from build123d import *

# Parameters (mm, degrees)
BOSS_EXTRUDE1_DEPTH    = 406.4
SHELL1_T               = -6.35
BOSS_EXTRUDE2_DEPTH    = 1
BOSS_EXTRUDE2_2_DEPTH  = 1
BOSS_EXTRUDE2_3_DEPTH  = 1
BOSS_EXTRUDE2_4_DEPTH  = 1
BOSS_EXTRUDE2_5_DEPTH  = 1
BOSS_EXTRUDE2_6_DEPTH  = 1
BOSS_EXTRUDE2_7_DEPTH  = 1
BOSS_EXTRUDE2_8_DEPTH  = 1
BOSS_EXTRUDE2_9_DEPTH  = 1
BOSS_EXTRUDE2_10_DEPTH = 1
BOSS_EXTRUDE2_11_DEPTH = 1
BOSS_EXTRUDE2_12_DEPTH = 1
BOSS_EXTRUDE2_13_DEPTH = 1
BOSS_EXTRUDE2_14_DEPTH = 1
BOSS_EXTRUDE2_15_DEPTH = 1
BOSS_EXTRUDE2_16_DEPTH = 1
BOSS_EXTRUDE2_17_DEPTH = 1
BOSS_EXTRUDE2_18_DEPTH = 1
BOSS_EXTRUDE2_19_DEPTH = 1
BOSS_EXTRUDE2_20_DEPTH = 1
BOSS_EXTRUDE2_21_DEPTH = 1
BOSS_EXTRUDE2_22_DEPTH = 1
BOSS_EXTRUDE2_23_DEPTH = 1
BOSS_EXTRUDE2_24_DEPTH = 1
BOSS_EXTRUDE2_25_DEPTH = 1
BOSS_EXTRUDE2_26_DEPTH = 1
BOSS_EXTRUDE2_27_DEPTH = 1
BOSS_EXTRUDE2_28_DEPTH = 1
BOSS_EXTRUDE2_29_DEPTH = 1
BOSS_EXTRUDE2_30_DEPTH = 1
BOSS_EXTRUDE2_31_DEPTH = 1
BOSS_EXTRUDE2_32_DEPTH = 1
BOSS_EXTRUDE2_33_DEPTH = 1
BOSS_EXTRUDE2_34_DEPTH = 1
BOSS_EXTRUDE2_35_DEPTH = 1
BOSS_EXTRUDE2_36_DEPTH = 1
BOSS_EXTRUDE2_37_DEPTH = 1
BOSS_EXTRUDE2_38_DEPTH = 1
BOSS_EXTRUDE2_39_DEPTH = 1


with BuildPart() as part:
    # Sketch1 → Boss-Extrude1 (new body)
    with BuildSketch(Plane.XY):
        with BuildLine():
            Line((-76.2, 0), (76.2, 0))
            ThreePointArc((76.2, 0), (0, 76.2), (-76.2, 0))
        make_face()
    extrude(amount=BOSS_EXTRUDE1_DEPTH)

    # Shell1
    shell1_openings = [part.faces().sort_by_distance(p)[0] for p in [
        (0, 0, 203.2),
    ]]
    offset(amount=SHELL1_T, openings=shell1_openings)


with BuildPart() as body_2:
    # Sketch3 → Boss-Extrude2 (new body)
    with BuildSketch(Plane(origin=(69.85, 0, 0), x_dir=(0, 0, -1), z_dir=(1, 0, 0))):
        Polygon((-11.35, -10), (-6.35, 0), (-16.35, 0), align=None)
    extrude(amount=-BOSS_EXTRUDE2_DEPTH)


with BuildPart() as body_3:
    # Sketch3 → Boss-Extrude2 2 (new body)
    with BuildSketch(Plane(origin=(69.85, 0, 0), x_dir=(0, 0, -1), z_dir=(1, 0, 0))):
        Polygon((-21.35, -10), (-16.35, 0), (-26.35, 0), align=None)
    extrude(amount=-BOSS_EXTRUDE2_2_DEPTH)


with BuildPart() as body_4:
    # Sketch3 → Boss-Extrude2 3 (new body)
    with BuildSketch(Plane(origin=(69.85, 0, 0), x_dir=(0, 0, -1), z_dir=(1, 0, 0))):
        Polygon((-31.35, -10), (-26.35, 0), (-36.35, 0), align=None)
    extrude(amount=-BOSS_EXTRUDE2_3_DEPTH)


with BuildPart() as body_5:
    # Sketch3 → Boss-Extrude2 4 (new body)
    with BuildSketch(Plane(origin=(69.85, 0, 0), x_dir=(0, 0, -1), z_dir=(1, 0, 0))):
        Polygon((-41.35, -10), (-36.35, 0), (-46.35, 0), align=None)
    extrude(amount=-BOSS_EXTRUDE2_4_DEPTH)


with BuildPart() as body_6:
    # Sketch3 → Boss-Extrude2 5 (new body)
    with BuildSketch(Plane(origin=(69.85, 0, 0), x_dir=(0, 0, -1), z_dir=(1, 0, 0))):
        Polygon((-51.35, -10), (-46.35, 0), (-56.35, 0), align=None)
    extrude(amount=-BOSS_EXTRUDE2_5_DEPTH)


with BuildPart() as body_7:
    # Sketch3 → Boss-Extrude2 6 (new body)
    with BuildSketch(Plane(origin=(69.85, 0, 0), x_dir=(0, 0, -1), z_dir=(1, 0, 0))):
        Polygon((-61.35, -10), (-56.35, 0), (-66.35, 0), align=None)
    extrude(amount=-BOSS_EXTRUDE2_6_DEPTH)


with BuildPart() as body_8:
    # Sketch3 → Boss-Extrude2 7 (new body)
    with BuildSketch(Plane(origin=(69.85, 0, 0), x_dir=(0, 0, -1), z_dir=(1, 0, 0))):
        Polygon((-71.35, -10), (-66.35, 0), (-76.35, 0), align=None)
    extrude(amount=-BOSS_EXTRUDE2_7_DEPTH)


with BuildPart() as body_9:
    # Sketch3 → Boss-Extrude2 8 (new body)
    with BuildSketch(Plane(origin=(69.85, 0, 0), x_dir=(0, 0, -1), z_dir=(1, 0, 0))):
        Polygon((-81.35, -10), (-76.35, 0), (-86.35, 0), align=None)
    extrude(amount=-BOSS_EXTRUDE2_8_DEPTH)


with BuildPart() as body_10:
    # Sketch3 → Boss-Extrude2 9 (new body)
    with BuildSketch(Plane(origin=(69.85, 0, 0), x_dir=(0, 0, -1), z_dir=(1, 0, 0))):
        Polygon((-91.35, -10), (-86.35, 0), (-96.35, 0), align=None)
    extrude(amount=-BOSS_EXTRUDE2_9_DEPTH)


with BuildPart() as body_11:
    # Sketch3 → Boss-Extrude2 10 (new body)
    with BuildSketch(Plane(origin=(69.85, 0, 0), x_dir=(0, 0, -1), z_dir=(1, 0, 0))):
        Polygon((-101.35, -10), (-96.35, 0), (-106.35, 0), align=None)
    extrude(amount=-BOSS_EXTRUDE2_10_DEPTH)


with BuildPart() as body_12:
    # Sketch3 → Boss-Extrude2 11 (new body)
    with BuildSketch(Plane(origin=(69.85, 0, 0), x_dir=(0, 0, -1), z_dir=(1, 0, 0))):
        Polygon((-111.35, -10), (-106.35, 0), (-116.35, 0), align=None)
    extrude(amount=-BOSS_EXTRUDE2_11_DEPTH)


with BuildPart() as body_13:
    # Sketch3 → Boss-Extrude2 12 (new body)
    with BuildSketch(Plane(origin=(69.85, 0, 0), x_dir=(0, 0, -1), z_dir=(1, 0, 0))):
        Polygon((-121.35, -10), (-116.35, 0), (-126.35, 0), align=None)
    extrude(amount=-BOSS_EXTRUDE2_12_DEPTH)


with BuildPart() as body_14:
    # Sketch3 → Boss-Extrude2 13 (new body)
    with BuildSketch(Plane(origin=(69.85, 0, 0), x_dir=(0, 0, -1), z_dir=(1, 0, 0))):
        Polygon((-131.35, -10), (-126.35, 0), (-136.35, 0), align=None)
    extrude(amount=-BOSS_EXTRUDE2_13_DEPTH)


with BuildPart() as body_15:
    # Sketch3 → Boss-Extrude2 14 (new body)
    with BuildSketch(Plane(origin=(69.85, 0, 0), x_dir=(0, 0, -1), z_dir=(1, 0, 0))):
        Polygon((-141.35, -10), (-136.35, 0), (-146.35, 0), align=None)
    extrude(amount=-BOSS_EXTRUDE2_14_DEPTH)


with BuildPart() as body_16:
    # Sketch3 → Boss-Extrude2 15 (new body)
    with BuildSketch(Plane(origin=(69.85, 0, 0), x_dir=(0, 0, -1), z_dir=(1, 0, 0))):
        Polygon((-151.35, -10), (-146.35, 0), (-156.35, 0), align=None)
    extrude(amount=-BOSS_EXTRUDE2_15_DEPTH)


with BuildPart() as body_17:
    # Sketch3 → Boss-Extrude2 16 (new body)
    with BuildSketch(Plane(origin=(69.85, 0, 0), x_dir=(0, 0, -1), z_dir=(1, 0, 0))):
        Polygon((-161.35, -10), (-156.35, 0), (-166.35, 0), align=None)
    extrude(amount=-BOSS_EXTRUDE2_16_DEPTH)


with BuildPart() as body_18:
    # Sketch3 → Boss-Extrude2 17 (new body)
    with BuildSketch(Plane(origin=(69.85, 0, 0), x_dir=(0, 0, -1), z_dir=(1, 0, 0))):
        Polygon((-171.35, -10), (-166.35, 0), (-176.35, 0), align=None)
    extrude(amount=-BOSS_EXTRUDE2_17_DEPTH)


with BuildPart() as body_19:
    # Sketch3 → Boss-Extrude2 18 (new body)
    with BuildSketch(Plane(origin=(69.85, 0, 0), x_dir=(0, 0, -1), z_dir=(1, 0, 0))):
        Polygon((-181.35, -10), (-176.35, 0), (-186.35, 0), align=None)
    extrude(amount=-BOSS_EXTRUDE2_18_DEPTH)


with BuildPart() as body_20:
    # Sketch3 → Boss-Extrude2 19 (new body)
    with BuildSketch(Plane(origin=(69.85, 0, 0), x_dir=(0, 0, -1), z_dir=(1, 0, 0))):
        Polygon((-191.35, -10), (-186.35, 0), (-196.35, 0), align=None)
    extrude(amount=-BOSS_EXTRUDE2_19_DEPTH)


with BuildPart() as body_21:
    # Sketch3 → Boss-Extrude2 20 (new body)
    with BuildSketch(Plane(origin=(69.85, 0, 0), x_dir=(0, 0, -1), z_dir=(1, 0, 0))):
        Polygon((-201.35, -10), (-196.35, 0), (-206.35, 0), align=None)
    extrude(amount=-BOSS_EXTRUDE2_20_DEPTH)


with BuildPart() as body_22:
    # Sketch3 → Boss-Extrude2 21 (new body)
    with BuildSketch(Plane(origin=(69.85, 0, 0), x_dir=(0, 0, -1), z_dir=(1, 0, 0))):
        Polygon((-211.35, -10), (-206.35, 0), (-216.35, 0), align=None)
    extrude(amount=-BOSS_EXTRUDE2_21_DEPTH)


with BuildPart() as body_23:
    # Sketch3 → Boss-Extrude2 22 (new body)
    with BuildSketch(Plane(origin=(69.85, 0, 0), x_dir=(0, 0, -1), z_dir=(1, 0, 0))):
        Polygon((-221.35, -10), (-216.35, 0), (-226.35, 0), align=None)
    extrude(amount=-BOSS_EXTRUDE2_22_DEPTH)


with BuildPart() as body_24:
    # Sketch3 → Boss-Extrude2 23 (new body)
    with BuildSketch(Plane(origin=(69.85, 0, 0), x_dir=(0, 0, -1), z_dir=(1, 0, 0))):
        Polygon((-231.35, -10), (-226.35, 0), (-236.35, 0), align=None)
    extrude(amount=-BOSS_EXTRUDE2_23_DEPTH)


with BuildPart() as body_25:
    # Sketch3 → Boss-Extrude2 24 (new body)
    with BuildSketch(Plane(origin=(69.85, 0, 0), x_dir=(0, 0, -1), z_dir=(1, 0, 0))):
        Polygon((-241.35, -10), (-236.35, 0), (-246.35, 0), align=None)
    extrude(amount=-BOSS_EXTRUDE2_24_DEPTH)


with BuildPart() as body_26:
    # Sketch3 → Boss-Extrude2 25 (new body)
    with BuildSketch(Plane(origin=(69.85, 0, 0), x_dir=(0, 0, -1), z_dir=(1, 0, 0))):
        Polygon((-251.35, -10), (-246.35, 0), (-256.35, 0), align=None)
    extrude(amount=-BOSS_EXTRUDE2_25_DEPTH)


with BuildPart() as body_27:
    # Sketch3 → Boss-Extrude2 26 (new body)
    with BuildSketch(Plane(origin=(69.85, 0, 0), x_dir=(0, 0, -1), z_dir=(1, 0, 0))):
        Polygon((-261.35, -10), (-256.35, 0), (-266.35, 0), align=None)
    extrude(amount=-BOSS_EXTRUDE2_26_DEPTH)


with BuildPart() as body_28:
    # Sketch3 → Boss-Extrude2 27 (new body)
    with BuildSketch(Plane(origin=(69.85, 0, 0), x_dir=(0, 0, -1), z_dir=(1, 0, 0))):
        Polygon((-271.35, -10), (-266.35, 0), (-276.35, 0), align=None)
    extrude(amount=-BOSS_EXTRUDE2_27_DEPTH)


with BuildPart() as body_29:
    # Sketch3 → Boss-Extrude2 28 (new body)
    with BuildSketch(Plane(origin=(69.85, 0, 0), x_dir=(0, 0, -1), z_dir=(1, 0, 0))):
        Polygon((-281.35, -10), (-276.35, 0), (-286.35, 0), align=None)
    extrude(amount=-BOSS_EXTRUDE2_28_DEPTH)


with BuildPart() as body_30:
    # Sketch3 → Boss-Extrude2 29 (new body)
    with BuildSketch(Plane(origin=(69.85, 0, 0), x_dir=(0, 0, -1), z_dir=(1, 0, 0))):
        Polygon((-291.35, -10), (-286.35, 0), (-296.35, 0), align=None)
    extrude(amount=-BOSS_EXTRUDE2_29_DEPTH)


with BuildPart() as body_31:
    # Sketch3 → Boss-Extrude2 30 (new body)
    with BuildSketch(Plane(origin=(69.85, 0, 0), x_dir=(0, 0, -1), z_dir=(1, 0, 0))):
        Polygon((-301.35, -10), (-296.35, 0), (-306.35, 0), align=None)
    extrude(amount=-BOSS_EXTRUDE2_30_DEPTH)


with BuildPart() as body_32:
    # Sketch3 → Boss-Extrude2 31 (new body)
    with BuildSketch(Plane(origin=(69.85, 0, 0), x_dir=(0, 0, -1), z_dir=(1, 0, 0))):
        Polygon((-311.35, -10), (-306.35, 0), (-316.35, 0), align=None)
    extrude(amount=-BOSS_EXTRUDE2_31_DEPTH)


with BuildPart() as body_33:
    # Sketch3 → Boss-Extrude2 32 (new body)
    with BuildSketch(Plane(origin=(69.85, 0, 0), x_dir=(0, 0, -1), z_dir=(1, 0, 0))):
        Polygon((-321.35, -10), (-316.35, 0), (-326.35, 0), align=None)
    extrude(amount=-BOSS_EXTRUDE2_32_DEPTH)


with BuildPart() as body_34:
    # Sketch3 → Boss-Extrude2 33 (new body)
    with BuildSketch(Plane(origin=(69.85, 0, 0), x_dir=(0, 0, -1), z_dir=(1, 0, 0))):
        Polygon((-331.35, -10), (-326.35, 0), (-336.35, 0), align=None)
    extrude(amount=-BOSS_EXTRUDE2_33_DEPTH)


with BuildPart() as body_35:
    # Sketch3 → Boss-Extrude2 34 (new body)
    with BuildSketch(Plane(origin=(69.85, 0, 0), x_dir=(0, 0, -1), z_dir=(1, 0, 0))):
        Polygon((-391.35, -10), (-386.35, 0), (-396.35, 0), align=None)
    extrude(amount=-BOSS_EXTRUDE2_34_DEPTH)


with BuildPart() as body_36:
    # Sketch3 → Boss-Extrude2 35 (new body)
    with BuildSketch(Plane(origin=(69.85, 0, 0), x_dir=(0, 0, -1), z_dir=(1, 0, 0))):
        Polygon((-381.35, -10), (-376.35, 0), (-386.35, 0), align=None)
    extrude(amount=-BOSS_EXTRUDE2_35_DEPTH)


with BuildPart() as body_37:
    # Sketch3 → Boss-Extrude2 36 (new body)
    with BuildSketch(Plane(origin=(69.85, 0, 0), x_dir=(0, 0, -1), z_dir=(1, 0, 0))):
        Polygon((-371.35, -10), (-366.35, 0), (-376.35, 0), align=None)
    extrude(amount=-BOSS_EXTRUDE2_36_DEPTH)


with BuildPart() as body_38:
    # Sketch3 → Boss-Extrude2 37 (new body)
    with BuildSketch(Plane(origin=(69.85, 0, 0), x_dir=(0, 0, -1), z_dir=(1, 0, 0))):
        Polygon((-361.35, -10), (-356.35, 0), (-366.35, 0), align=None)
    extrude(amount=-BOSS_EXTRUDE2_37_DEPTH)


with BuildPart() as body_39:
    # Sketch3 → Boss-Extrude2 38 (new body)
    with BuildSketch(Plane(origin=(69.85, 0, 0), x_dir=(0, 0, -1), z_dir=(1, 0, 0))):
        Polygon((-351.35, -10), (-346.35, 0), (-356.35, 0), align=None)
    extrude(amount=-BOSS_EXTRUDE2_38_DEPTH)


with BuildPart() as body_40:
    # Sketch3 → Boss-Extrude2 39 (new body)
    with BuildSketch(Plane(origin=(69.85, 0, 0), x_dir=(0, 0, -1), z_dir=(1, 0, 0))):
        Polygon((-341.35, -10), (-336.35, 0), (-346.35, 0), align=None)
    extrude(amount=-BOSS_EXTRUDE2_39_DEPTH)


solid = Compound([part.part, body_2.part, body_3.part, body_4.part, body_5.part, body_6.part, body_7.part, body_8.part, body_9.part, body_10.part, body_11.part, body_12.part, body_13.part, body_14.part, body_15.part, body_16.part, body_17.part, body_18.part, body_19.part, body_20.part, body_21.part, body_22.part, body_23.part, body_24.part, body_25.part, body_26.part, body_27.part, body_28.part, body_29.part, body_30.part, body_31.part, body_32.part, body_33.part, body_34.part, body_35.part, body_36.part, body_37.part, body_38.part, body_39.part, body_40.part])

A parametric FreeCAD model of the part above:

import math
import FreeCAD as App
import Part
import Sketcher
from FreeCAD import Vector
Q = App.Units.Quantity


def faces_at(feature, points):
    """Names of the faces that lie closest to the given points."""
    faces = feature.Shape.Faces
    near = lambda p: min(range(len(faces)), key=lambda i: faces[i].distToShape(Part.Vertex(*p))[0])
    return sorted({f"Face{near(p) + 1}" for p in points})


def add_polygon(sketch, points):
    """Adds a closed chain of lines whose ends are joined by coincident constraints."""
    first, n = sketch.GeometryCount, len(points)
    for a, b in zip(points, points[1:] + points[:1]):
        sketch.addGeometry(Part.LineSegment(App.Vector(*a, 0), App.Vector(*b, 0)), False)
    for i in range(n):
        sketch.addConstraint(Sketcher.Constraint("Coincident", first + i, 2, first + (i + 1) % n, 1))

doc = App.newDocument("Part")
body = doc.addObject("PartDesign::Body", "Body")

sketch1 = doc.addObject("Sketcher::SketchObject", "Sketch")
body.addObject(sketch1)
sketch1.AttachmentSupport = (doc.XY_Plane, [""])
sketch1.MapMode = "FlatFace"
sketch1.addGeometry(Part.LineSegment(Vector(-76, 0, 0), Vector(76, 0, 0)), False)
sketch1.addGeometry(Part.ArcOfCircle(Part.Circle(Vector(0, 0, 0), Vector(0, 0, 1), 76), math.radians(0), math.radians(180)), False)
sketch1.addConstraint(Sketcher.Constraint("Coincident", 0, 1, 1, 2))
sketch1.addConstraint(Sketcher.Constraint("Coincident", 1, 1, 0, 2))
sketch1.addConstraint(Sketcher.Constraint("Horizontal", 0))
sketch1.addConstraint(Sketcher.Constraint("Coincident", 1, 3, -1, 1))
sketch1.addConstraint(Sketcher.Constraint("PointOnObject", 0, 1, -1))
sketch1.addConstraint(Sketcher.Constraint("Radius", 1, Q("3 in")))
pad1 = doc.addObject("PartDesign::Pad", "Pad")
body.addObject(pad1)
pad1.Profile = sketch1
pad1.Length = Q("16 in")
doc.recompute()

thickness = doc.addObject("PartDesign::Thickness", "Thickness")
body.addObject(thickness)
thickness.Base = (pad1, faces_at(pad1, [(0, 0, 203.2)]))
thickness.Value = Q("0.25 in")
thickness.Reversed = True
thickness.Join = "Arc"
body2 = doc.addObject("PartDesign::Body", "Body001")

sketch2 = doc.addObject("Sketcher::SketchObject", "Sketch001")
body2.addObject(sketch2)
sketch2.AttachmentSupport = (doc.getObject("YZ_Plane001"), [""])
sketch2.MapMode = "FlatFace"
sketch2.AttachmentOffset = App.Placement(Vector(0, 0, 2.75 * 25.4), App.Rotation())
add_polygon(sketch2, [(-10, 11), (0, 6), (0, 16)])
sketch2.addConstraint(Sketcher.Constraint("Vertical", 1))
sketch2.addConstraint(Sketcher.Constraint("PointOnObject", 0, 2, -2))
sketch2.addConstraint(Sketcher.Constraint("Equal", 0, 2))
sketch2.addConstraint(Sketcher.Constraint("DistanceY", -1, 1, 0, 2, Q("0.25 in")))
sketch2.addConstraint(Sketcher.Constraint("DistanceY", 1, 1, 1, 2, Q("10 mm")))
sketch2.addConstraint(Sketcher.Constraint("DistanceX", 2, 2, -1, 1, Q("10 mm")))
pad2 = doc.addObject("PartDesign::Pad", "Pad001")
body2.addObject(pad2)
pad2.Profile = sketch2
pad2.Length = 1
pad2.Reversed = True
body3 = doc.addObject("PartDesign::Body", "Body002")

sketch3 = doc.addObject("Sketcher::SketchObject", "Sketch002")
body3.addObject(sketch3)
sketch3.AttachmentSupport = (doc.getObject("YZ_Plane002"), [""])
sketch3.MapMode = "FlatFace"
sketch3.AttachmentOffset = App.Placement(Vector(0, 0, 2.75 * 25.4), App.Rotation())
add_polygon(sketch3, [(-10, 21), (0, 16), (0, 26)])
sketch3.addConstraint(Sketcher.Constraint("Vertical", 1))
sketch3.addConstraint(Sketcher.Constraint("PointOnObject", 0, 2, -2))
sketch3.addConstraint(Sketcher.Constraint("Equal", 0, 2))
sketch3.addConstraint(Sketcher.Constraint("DistanceY", 1, 1, 1, 2, Q("10 mm")))
sketch3.addConstraint(Sketcher.Constraint("DistanceY", -1, 1, 0, 2, Q("16.35 mm")))
sketch3.addConstraint(Sketcher.Constraint("DistanceX", 2, 2, -1, 1, Q("10 mm")))
pad3 = doc.addObject("PartDesign::Pad", "Pad002")
body3.addObject(pad3)
pad3.Profile = sketch3
pad3.Length = 1
pad3.Reversed = True
body4 = doc.addObject("PartDesign::Body", "Body003")

sketch4 = doc.addObject("Sketcher::SketchObject", "Sketch003")
body4.addObject(sketch4)
sketch4.AttachmentSupport = (doc.getObject("YZ_Plane003"), [""])
sketch4.MapMode = "FlatFace"
sketch4.AttachmentOffset = App.Placement(Vector(0, 0, 2.75 * 25.4), App.Rotation())
add_polygon(sketch4, [(-10, 31), (0, 26), (0, 36)])
sketch4.addConstraint(Sketcher.Constraint("Vertical", 1))
sketch4.addConstraint(Sketcher.Constraint("PointOnObject", 0, 2, -2))
sketch4.addConstraint(Sketcher.Constraint("Equal", 0, 2))
sketch4.addConstraint(Sketcher.Constraint("DistanceY", 1, 1, 1, 2, Q("10 mm")))
sketch4.addConstraint(Sketcher.Constraint("DistanceY", -1, 1, 0, 2, Q("26.35 mm")))
sketch4.addConstraint(Sketcher.Constraint("DistanceX", 2, 2, -1, 1, Q("10 mm")))
pad4 = doc.addObject("PartDesign::Pad", "Pad003")
body4.addObject(pad4)
pad4.Profile = sketch4
pad4.Length = 1
pad4.Reversed = True
body5 = doc.addObject("PartDesign::Body", "Body004")

sketch5 = doc.addObject("Sketcher::SketchObject", "Sketch004")
body5.addObject(sketch5)
sketch5.AttachmentSupport = (doc.getObject("YZ_Plane004"), [""])
sketch5.MapMode = "FlatFace"
sketch5.AttachmentOffset = App.Placement(Vector(0, 0, 2.75 * 25.4), App.Rotation())
add_polygon(sketch5, [(-10, 41), (0, 36), (0, 46)])
sketch5.addConstraint(Sketcher.Constraint("Vertical", 1))
sketch5.addConstraint(Sketcher.Constraint("PointOnObject", 0, 2, -2))
sketch5.addConstraint(Sketcher.Constraint("Equal", 0, 2))
sketch5.addConstraint(Sketcher.Constraint("DistanceY", 1, 1, 1, 2, Q("10 mm")))
sketch5.addConstraint(Sketcher.Constraint("DistanceY", -1, 1, 0, 2, Q("36.35 mm")))
sketch5.addConstraint(Sketcher.Constraint("DistanceX", 2, 2, -1, 1, Q("10 mm")))
pad5 = doc.addObject("PartDesign::Pad", "Pad004")
body5.addObject(pad5)
pad5.Profile = sketch5
pad5.Length = 1
pad5.Reversed = True
body6 = doc.addObject("PartDesign::Body", "Body005")

sketch6 = doc.addObject("Sketcher::SketchObject", "Sketch005")
body6.addObject(sketch6)
sketch6.AttachmentSupport = (doc.getObject("YZ_Plane005"), [""])
sketch6.MapMode = "FlatFace"
sketch6.AttachmentOffset = App.Placement(Vector(0, 0, 2.75 * 25.4), App.Rotation())
add_polygon(sketch6, [(-10, 51), (0, 46), (0, 56)])
sketch6.addConstraint(Sketcher.Constraint("Vertical", 1))
sketch6.addConstraint(Sketcher.Constraint("PointOnObject", 0, 2, -2))
sketch6.addConstraint(Sketcher.Constraint("Equal", 0, 2))
sketch6.addConstraint(Sketcher.Constraint("DistanceY", 1, 1, 1, 2, Q("10 mm")))
sketch6.addConstraint(Sketcher.Constraint("DistanceY", -1, 1, 0, 2, Q("46.35 mm")))
sketch6.addConstraint(Sketcher.Constraint("DistanceX", 2, 2, -1, 1, Q("10 mm")))
pad6 = doc.addObject("PartDesign::Pad", "Pad005")
body6.addObject(pad6)
pad6.Profile = sketch6
pad6.Length = 1
pad6.Reversed = True
body7 = doc.addObject("PartDesign::Body", "Body006")

sketch7 = doc.addObject("Sketcher::SketchObject", "Sketch006")
body7.addObject(sketch7)
sketch7.AttachmentSupport = (doc.getObject("YZ_Plane006"), [""])
sketch7.MapMode = "FlatFace"
sketch7.AttachmentOffset = App.Placement(Vector(0, 0, 2.75 * 25.4), App.Rotation())
add_polygon(sketch7, [(-10, 61), (0, 56), (0, 66)])
sketch7.addConstraint(Sketcher.Constraint("Vertical", 1))
sketch7.addConstraint(Sketcher.Constraint("PointOnObject", 0, 2, -2))
sketch7.addConstraint(Sketcher.Constraint("Equal", 0, 2))
sketch7.addConstraint(Sketcher.Constraint("DistanceY", 1, 1, 1, 2, Q("10 mm")))
sketch7.addConstraint(Sketcher.Constraint("DistanceY", -1, 1, 0, 2, Q("56.35 mm")))
sketch7.addConstraint(Sketcher.Constraint("DistanceX", 2, 2, -1, 1, Q("10 mm")))
pad7 = doc.addObject("PartDesign::Pad", "Pad006")
body7.addObject(pad7)
pad7.Profile = sketch7
pad7.Length = 1
pad7.Reversed = True
body8 = doc.addObject("PartDesign::Body", "Body007")

sketch8 = doc.addObject("Sketcher::SketchObject", "Sketch007")
body8.addObject(sketch8)
sketch8.AttachmentSupport = (doc.getObject("YZ_Plane007"), [""])
sketch8.MapMode = "FlatFace"
sketch8.AttachmentOffset = App.Placement(Vector(0, 0, 2.75 * 25.4), App.Rotation())
add_polygon(sketch8, [(-10, 71), (0, 66), (0, 76)])
sketch8.addConstraint(Sketcher.Constraint("Vertical", 1))
sketch8.addConstraint(Sketcher.Constraint("PointOnObject", 0, 2, -2))
sketch8.addConstraint(Sketcher.Constraint("Equal", 0, 2))
sketch8.addConstraint(Sketcher.Constraint("DistanceY", 1, 1, 1, 2, Q("10 mm")))
sketch8.addConstraint(Sketcher.Constraint("DistanceY", -1, 1, 0, 2, Q("66.35 mm")))
sketch8.addConstraint(Sketcher.Constraint("DistanceX", 2, 2, -1, 1, Q("10 mm")))
pad8 = doc.addObject("PartDesign::Pad", "Pad007")
body8.addObject(pad8)
pad8.Profile = sketch8
pad8.Length = 1
pad8.Reversed = True
body9 = doc.addObject("PartDesign::Body", "Body008")

sketch9 = doc.addObject("Sketcher::SketchObject", "Sketch008")
body9.addObject(sketch9)
sketch9.AttachmentSupport = (doc.getObject("YZ_Plane008"), [""])
sketch9.MapMode = "FlatFace"
sketch9.AttachmentOffset = App.Placement(Vector(0, 0, 2.75 * 25.4), App.Rotation())
add_polygon(sketch9, [(-10, 81), (0, 76), (0, 86)])
sketch9.addConstraint(Sketcher.Constraint("Vertical", 1))
sketch9.addConstraint(Sketcher.Constraint("PointOnObject", 0, 2, -2))
sketch9.addConstraint(Sketcher.Constraint("Equal", 0, 2))
sketch9.addConstraint(Sketcher.Constraint("DistanceY", 1, 1, 1, 2, Q("10 mm")))
sketch9.addConstraint(Sketcher.Constraint("DistanceY", -1, 1, 0, 2, Q("76.35 mm")))
sketch9.addConstraint(Sketcher.Constraint("DistanceX", 2, 2, -1, 1, Q("10 mm")))
pad9 = doc.addObject("PartDesign::Pad", "Pad008")
body9.addObject(pad9)
pad9.Profile = sketch9
pad9.Length = 1
pad9.Reversed = True
body10 = doc.addObject("PartDesign::Body", "Body009")

sketch10 = doc.addObject("Sketcher::SketchObject", "Sketch009")
body10.addObject(sketch10)
sketch10.AttachmentSupport = (doc.getObject("YZ_Plane009"), [""])
sketch10.MapMode = "FlatFace"
sketch10.AttachmentOffset = App.Placement(Vector(0, 0, 2.75 * 25.4), App.Rotation())
add_polygon(sketch10, [(-10, 91), (0, 86), (0, 96)])
sketch10.addConstraint(Sketcher.Constraint("Vertical", 1))
sketch10.addConstraint(Sketcher.Constraint("PointOnObject", 0, 2, -2))
sketch10.addConstraint(Sketcher.Constraint("Equal", 0, 2))
sketch10.addConstraint(Sketcher.Constraint("DistanceY", 1, 1, 1, 2, Q("10 mm")))
sketch10.addConstraint(Sketcher.Constraint("DistanceY", -1, 1, 0, 2, Q("86.35 mm")))
sketch10.addConstraint(Sketcher.Constraint("DistanceX", 2, 2, -1, 1, Q("10 mm")))
pad10 = doc.addObject("PartDesign::Pad", "Pad009")
body10.addObject(pad10)
pad10.Profile = sketch10
pad10.Length = 1
pad10.Reversed = True
body11 = doc.addObject("PartDesign::Body", "Body010")

sketch11 = doc.addObject("Sketcher::SketchObject", "Sketch010")
body11.addObject(sketch11)
sketch11.AttachmentSupport = (doc.getObject("YZ_Plane010"), [""])
sketch11.MapMode = "FlatFace"
sketch11.AttachmentOffset = App.Placement(Vector(0, 0, 2.75 * 25.4), App.Rotation())
add_polygon(sketch11, [(-10, 101), (0, 96), (0, 106)])
sketch11.addConstraint(Sketcher.Constraint("Vertical", 1))
sketch11.addConstraint(Sketcher.Constraint("PointOnObject", 0, 2, -2))
sketch11.addConstraint(Sketcher.Constraint("Equal", 0, 2))
sketch11.addConstraint(Sketcher.Constraint("DistanceY", 1, 1, 1, 2, Q("10 mm")))
sketch11.addConstraint(Sketcher.Constraint("DistanceY", -1, 1, 0, 2, Q("96.35 mm")))
sketch11.addConstraint(Sketcher.Constraint("DistanceX", 2, 2, -1, 1, Q("10 mm")))
pad11 = doc.addObject("PartDesign::Pad", "Pad010")
body11.addObject(pad11)
pad11.Profile = sketch11
pad11.Length = 1
pad11.Reversed = True
body12 = doc.addObject("PartDesign::Body", "Body011")

sketch12 = doc.addObject("Sketcher::SketchObject", "Sketch011")
body12.addObject(sketch12)
sketch12.AttachmentSupport = (doc.getObject("YZ_Plane011"), [""])
sketch12.MapMode = "FlatFace"
sketch12.AttachmentOffset = App.Placement(Vector(0, 0, 2.75 * 25.4), App.Rotation())
add_polygon(sketch12, [(-10, 111), (0, 106), (0, 116)])
sketch12.addConstraint(Sketcher.Constraint("Vertical", 1))
sketch12.addConstraint(Sketcher.Constraint("PointOnObject", 0, 2, -2))
sketch12.addConstraint(Sketcher.Constraint("Equal", 0, 2))
sketch12.addConstraint(Sketcher.Constraint("DistanceY", 1, 1, 1, 2, Q("10 mm")))
sketch12.addConstraint(Sketcher.Constraint("DistanceY", -1, 1, 0, 2, Q("106.35 mm")))
sketch12.addConstraint(Sketcher.Constraint("DistanceX", 2, 2, -1, 1, Q("10 mm")))
pad12 = doc.addObject("PartDesign::Pad", "Pad011")
body12.addObject(pad12)
pad12.Profile = sketch12
pad12.Length = 1
pad12.Reversed = True
body13 = doc.addObject("PartDesign::Body", "Body012")

sketch13 = doc.addObject("Sketcher::SketchObject", "Sketch012")
body13.addObject(sketch13)
sketch13.AttachmentSupport = (doc.getObject("YZ_Plane012"), [""])
sketch13.MapMode = "FlatFace"
sketch13.AttachmentOffset = App.Placement(Vector(0, 0, 2.75 * 25.4), App.Rotation())
add_polygon(sketch13, [(-10, 121), (0, 116), (0, 126)])
sketch13.addConstraint(Sketcher.Constraint("Vertical", 1))
sketch13.addConstraint(Sketcher.Constraint("PointOnObject", 0, 2, -2))
sketch13.addConstraint(Sketcher.Constraint("Equal", 0, 2))
sketch13.addConstraint(Sketcher.Constraint("DistanceY", 1, 1, 1, 2, Q("10 mm")))
sketch13.addConstraint(Sketcher.Constraint("DistanceY", -1, 1, 0, 2, Q("116.35 mm")))
sketch13.addConstraint(Sketcher.Constraint("DistanceX", 2, 2, -1, 1, Q("10 mm")))
pad13 = doc.addObject("PartDesign::Pad", "Pad012")
body13.addObject(pad13)
pad13.Profile = sketch13
pad13.Length = 1
pad13.Reversed = True
body14 = doc.addObject("PartDesign::Body", "Body013")

sketch14 = doc.addObject("Sketcher::SketchObject", "Sketch013")
body14.addObject(sketch14)
sketch14.AttachmentSupport = (doc.getObject("YZ_Plane013"), [""])
sketch14.MapMode = "FlatFace"
sketch14.AttachmentOffset = App.Placement(Vector(0, 0, 2.75 * 25.4), App.Rotation())
add_polygon(sketch14, [(-10, 131), (0, 126), (0, 136)])
sketch14.addConstraint(Sketcher.Constraint("Vertical", 1))
sketch14.addConstraint(Sketcher.Constraint("PointOnObject", 0, 2, -2))
sketch14.addConstraint(Sketcher.Constraint("Equal", 0, 2))
sketch14.addConstraint(Sketcher.Constraint("DistanceY", 1, 1, 1, 2, Q("10 mm")))
sketch14.addConstraint(Sketcher.Constraint("DistanceY", -1, 1, 0, 2, Q("126.35 mm")))
sketch14.addConstraint(Sketcher.Constraint("DistanceX", 2, 2, -1, 1, Q("10 mm")))
pad14 = doc.addObject("PartDesign::Pad", "Pad013")
body14.addObject(pad14)
pad14.Profile = sketch14
pad14.Length = 1
pad14.Reversed = True
body15 = doc.addObject("PartDesign::Body", "Body014")

sketch15 = doc.addObject("Sketcher::SketchObject", "Sketch014")
body15.addObject(sketch15)
sketch15.AttachmentSupport = (doc.getObject("YZ_Plane014"), [""])
sketch15.MapMode = "FlatFace"
sketch15.AttachmentOffset = App.Placement(Vector(0, 0, 2.75 * 25.4), App.Rotation())
add_polygon(sketch15, [(-10, 141), (0, 136), (0, 146)])
sketch15.addConstraint(Sketcher.Constraint("Vertical", 1))
sketch15.addConstraint(Sketcher.Constraint("PointOnObject", 0, 2, -2))
sketch15.addConstraint(Sketcher.Constraint("Equal", 0, 2))
sketch15.addConstraint(Sketcher.Constraint("DistanceY", 1, 1, 1, 2, Q("10 mm")))
sketch15.addConstraint(Sketcher.Constraint("DistanceY", -1, 1, 0, 2, Q("136.35 mm")))
sketch15.addConstraint(Sketcher.Constraint("DistanceX", 2, 2, -1, 1, Q("10 mm")))
pad15 = doc.addObject("PartDesign::Pad", "Pad014")
body15.addObject(pad15)
pad15.Profile = sketch15
pad15.Length = 1
pad15.Reversed = True
body16 = doc.addObject("PartDesign::Body", "Body015")

sketch16 = doc.addObject("Sketcher::SketchObject", "Sketch015")
body16.addObject(sketch16)
sketch16.AttachmentSupport = (doc.getObject("YZ_Plane015"), [""])
sketch16.MapMode = "FlatFace"
sketch16.AttachmentOffset = App.Placement(Vector(0, 0, 2.75 * 25.4), App.Rotation())
add_polygon(sketch16, [(-10, 151), (0, 146), (0, 156)])
sketch16.addConstraint(Sketcher.Constraint("Vertical", 1))
sketch16.addConstraint(Sketcher.Constraint("PointOnObject", 0, 2, -2))
sketch16.addConstraint(Sketcher.Constraint("Equal", 0, 2))
sketch16.addConstraint(Sketcher.Constraint("DistanceY", 1, 1, 1, 2, Q("10 mm")))
sketch16.addConstraint(Sketcher.Constraint("DistanceY", -1, 1, 0, 2, Q("146.35 mm")))
sketch16.addConstraint(Sketcher.Constraint("DistanceX", 2, 2, -1, 1, Q("10 mm")))
pad16 = doc.addObject("PartDesign::Pad", "Pad015")
body16.addObject(pad16)
pad16.Profile = sketch16
pad16.Length = 1
pad16.Reversed = True
body17 = doc.addObject("PartDesign::Body", "Body016")

sketch17 = doc.addObject("Sketcher::SketchObject", "Sketch016")
body17.addObject(sketch17)
sketch17.AttachmentSupport = (doc.getObject("YZ_Plane016"), [""])
sketch17.MapMode = "FlatFace"
sketch17.AttachmentOffset = App.Placement(Vector(0, 0, 2.75 * 25.4), App.Rotation())
add_polygon(sketch17, [(-10, 161), (0, 156), (0, 166)])
sketch17.addConstraint(Sketcher.Constraint("Vertical", 1))
sketch17.addConstraint(Sketcher.Constraint("PointOnObject", 0, 2, -2))
sketch17.addConstraint(Sketcher.Constraint("Equal", 0, 2))
sketch17.addConstraint(Sketcher.Constraint("DistanceY", 1, 1, 1, 2, Q("10 mm")))
sketch17.addConstraint(Sketcher.Constraint("DistanceY", -1, 1, 0, 2, Q("156.35 mm")))
sketch17.addConstraint(Sketcher.Constraint("DistanceX", 2, 2, -1, 1, Q("10 mm")))
pad17 = doc.addObject("PartDesign::Pad", "Pad016")
body17.addObject(pad17)
pad17.Profile = sketch17
pad17.Length = 1
pad17.Reversed = True
body18 = doc.addObject("PartDesign::Body", "Body017")

sketch18 = doc.addObject("Sketcher::SketchObject", "Sketch017")
body18.addObject(sketch18)
sketch18.AttachmentSupport = (doc.getObject("YZ_Plane017"), [""])
sketch18.MapMode = "FlatFace"
sketch18.AttachmentOffset = App.Placement(Vector(0, 0, 2.75 * 25.4), App.Rotation())
add_polygon(sketch18, [(-10, 171), (0, 166), (0, 176)])
sketch18.addConstraint(Sketcher.Constraint("Vertical", 1))
sketch18.addConstraint(Sketcher.Constraint("PointOnObject", 0, 2, -2))
sketch18.addConstraint(Sketcher.Constraint("Equal", 0, 2))
sketch18.addConstraint(Sketcher.Constraint("DistanceY", 1, 1, 1, 2, Q("10 mm")))
sketch18.addConstraint(Sketcher.Constraint("DistanceY", -1, 1, 0, 2, Q("166.35 mm")))
sketch18.addConstraint(Sketcher.Constraint("DistanceX", 2, 2, -1, 1, Q("10 mm")))
pad18 = doc.addObject("PartDesign::Pad", "Pad017")
body18.addObject(pad18)
pad18.Profile = sketch18
pad18.Length = 1
pad18.Reversed = True
body19 = doc.addObject("PartDesign::Body", "Body018")

sketch19 = doc.addObject("Sketcher::SketchObject", "Sketch018")
body19.addObject(sketch19)
sketch19.AttachmentSupport = (doc.getObject("YZ_Plane018"), [""])
sketch19.MapMode = "FlatFace"
sketch19.AttachmentOffset = App.Placement(Vector(0, 0, 2.75 * 25.4), App.Rotation())
add_polygon(sketch19, [(-10, 181), (0, 176), (0, 186)])
sketch19.addConstraint(Sketcher.Constraint("Vertical", 1))
sketch19.addConstraint(Sketcher.Constraint("PointOnObject", 0, 2, -2))
sketch19.addConstraint(Sketcher.Constraint("Equal", 0, 2))
sketch19.addConstraint(Sketcher.Constraint("DistanceY", 1, 1, 1, 2, Q("10 mm")))
sketch19.addConstraint(Sketcher.Constraint("DistanceY", -1, 1, 0, 2, Q("176.35 mm")))
sketch19.addConstraint(Sketcher.Constraint("DistanceX", 2, 2, -1, 1, Q("10 mm")))
pad19 = doc.addObject("PartDesign::Pad", "Pad018")
body19.addObject(pad19)
pad19.Profile = sketch19
pad19.Length = 1
pad19.Reversed = True
body20 = doc.addObject("PartDesign::Body", "Body019")

sketch20 = doc.addObject("Sketcher::SketchObject", "Sketch019")
body20.addObject(sketch20)
sketch20.AttachmentSupport = (doc.getObject("YZ_Plane019"), [""])
sketch20.MapMode = "FlatFace"
sketch20.AttachmentOffset = App.Placement(Vector(0, 0, 2.75 * 25.4), App.Rotation())
add_polygon(sketch20, [(-10, 191), (0, 186), (0, 196)])
sketch20.addConstraint(Sketcher.Constraint("Vertical", 1))
sketch20.addConstraint(Sketcher.Constraint("PointOnObject", 0, 2, -2))
sketch20.addConstraint(Sketcher.Constraint("Equal", 0, 2))
sketch20.addConstraint(Sketcher.Constraint("DistanceY", 1, 1, 1, 2, Q("10 mm")))
sketch20.addConstraint(Sketcher.Constraint("DistanceY", -1, 1, 0, 2, Q("186.35 mm")))
sketch20.addConstraint(Sketcher.Constraint("DistanceX", 2, 2, -1, 1, Q("10 mm")))
pad20 = doc.addObject("PartDesign::Pad", "Pad019")
body20.addObject(pad20)
pad20.Profile = sketch20
pad20.Length = 1
pad20.Reversed = True
body21 = doc.addObject("PartDesign::Body", "Body020")

sketch21 = doc.addObject("Sketcher::SketchObject", "Sketch020")
body21.addObject(sketch21)
sketch21.AttachmentSupport = (doc.getObject("YZ_Plane020"), [""])
sketch21.MapMode = "FlatFace"
sketch21.AttachmentOffset = App.Placement(Vector(0, 0, 2.75 * 25.4), App.Rotation())
add_polygon(sketch21, [(-10, 201), (0, 196), (0, 206)])
sketch21.addConstraint(Sketcher.Constraint("Vertical", 1))
sketch21.addConstraint(Sketcher.Constraint("PointOnObject", 0, 2, -2))
sketch21.addConstraint(Sketcher.Constraint("Equal", 0, 2))
sketch21.addConstraint(Sketcher.Constraint("DistanceY", 1, 1, 1, 2, Q("10 mm")))
sketch21.addConstraint(Sketcher.Constraint("DistanceY", -1, 1, 0, 2, Q("196.35 mm")))
sketch21.addConstraint(Sketcher.Constraint("DistanceX", 2, 2, -1, 1, Q("10 mm")))
pad21 = doc.addObject("PartDesign::Pad", "Pad020")
body21.addObject(pad21)
pad21.Profile = sketch21
pad21.Length = 1
pad21.Reversed = True
body22 = doc.addObject("PartDesign::Body", "Body021")

sketch22 = doc.addObject("Sketcher::SketchObject", "Sketch021")
body22.addObject(sketch22)
sketch22.AttachmentSupport = (doc.getObject("YZ_Plane021"), [""])
sketch22.MapMode = "FlatFace"
sketch22.AttachmentOffset = App.Placement(Vector(0, 0, 2.75 * 25.4), App.Rotation())
add_polygon(sketch22, [(-10, 211), (0, 206), (0, 216)])
sketch22.addConstraint(Sketcher.Constraint("Vertical", 1))
sketch22.addConstraint(Sketcher.Constraint("PointOnObject", 0, 2, -2))
sketch22.addConstraint(Sketcher.Constraint("Equal", 0, 2))
sketch22.addConstraint(Sketcher.Constraint("DistanceY", 1, 1, 1, 2, Q("10 mm")))
sketch22.addConstraint(Sketcher.Constraint("DistanceY", -1, 1, 0, 2, Q("206.35 mm")))
sketch22.addConstraint(Sketcher.Constraint("DistanceX", 2, 2, -1, 1, Q("10 mm")))
pad22 = doc.addObject("PartDesign::Pad", "Pad021")
body22.addObject(pad22)
pad22.Profile = sketch22
pad22.Length = 1
pad22.Reversed = True
body23 = doc.addObject("PartDesign::Body", "Body022")

sketch23 = doc.addObject("Sketcher::SketchObject", "Sketch022")
body23.addObject(sketch23)
sketch23.AttachmentSupport = (doc.getObject("YZ_Plane022"), [""])
sketch23.MapMode = "FlatFace"
sketch23.AttachmentOffset = App.Placement(Vector(0, 0, 2.75 * 25.4), App.Rotation())
add_polygon(sketch23, [(-10, 221), (0, 216), (0, 226)])
sketch23.addConstraint(Sketcher.Constraint("Vertical", 1))
sketch23.addConstraint(Sketcher.Constraint("PointOnObject", 0, 2, -2))
sketch23.addConstraint(Sketcher.Constraint("Equal", 0, 2))
sketch23.addConstraint(Sketcher.Constraint("DistanceY", 1, 1, 1, 2, Q("10 mm")))
sketch23.addConstraint(Sketcher.Constraint("DistanceY", -1, 1, 0, 2, Q("216.35 mm")))
sketch23.addConstraint(Sketcher.Constraint("DistanceX", 2, 2, -1, 1, Q("10 mm")))
pad23 = doc.addObject("PartDesign::Pad", "Pad022")
body23.addObject(pad23)
pad23.Profile = sketch23
pad23.Length = 1
pad23.Reversed = True
body24 = doc.addObject("PartDesign::Body", "Body023")

sketch24 = doc.addObject("Sketcher::SketchObject", "Sketch023")
body24.addObject(sketch24)
sketch24.AttachmentSupport = (doc.getObject("YZ_Plane023"), [""])
sketch24.MapMode = "FlatFace"
sketch24.AttachmentOffset = App.Placement(Vector(0, 0, 2.75 * 25.4), App.Rotation())
add_polygon(sketch24, [(-10, 231), (0, 226), (0, 236)])
sketch24.addConstraint(Sketcher.Constraint("Vertical", 1))
sketch24.addConstraint(Sketcher.Constraint("PointOnObject", 0, 2, -2))
sketch24.addConstraint(Sketcher.Constraint("Equal", 0, 2))
sketch24.addConstraint(Sketcher.Constraint("DistanceY", 1, 1, 1, 2, Q("10 mm")))
sketch24.addConstraint(Sketcher.Constraint("DistanceY", -1, 1, 0, 2, Q("226.35 mm")))
sketch24.addConstraint(Sketcher.Constraint("DistanceX", 2, 2, -1, 1, Q("10 mm")))
pad24 = doc.addObject("PartDesign::Pad", "Pad023")
body24.addObject(pad24)
pad24.Profile = sketch24
pad24.Length = 1
pad24.Reversed = True
body25 = doc.addObject("PartDesign::Body", "Body024")

sketch25 = doc.addObject("Sketcher::SketchObject", "Sketch024")
body25.addObject(sketch25)
sketch25.AttachmentSupport = (doc.getObject("YZ_Plane024"), [""])
sketch25.MapMode = "FlatFace"
sketch25.AttachmentOffset = App.Placement(Vector(0, 0, 2.75 * 25.4), App.Rotation())
add_polygon(sketch25, [(-10, 241), (0, 236), (0, 246)])
sketch25.addConstraint(Sketcher.Constraint("Vertical", 1))
sketch25.addConstraint(Sketcher.Constraint("PointOnObject", 0, 2, -2))
sketch25.addConstraint(Sketcher.Constraint("Equal", 0, 2))
sketch25.addConstraint(Sketcher.Constraint("DistanceY", 1, 1, 1, 2, Q("10 mm")))
sketch25.addConstraint(Sketcher.Constraint("DistanceY", -1, 1, 0, 2, Q("236.35 mm")))
sketch25.addConstraint(Sketcher.Constraint("DistanceX", 2, 2, -1, 1, Q("10 mm")))
pad25 = doc.addObject("PartDesign::Pad", "Pad024")
body25.addObject(pad25)
pad25.Profile = sketch25
pad25.Length = 1
pad25.Reversed = True
body26 = doc.addObject("PartDesign::Body", "Body025")

sketch26 = doc.addObject("Sketcher::SketchObject", "Sketch025")
body26.addObject(sketch26)
sketch26.AttachmentSupport = (doc.getObject("YZ_Plane025"), [""])
sketch26.MapMode = "FlatFace"
sketch26.AttachmentOffset = App.Placement(Vector(0, 0, 2.75 * 25.4), App.Rotation())
add_polygon(sketch26, [(-10, 251), (0, 246), (0, 256)])
sketch26.addConstraint(Sketcher.Constraint("Vertical", 1))
sketch26.addConstraint(Sketcher.Constraint("PointOnObject", 0, 2, -2))
sketch26.addConstraint(Sketcher.Constraint("Equal", 0, 2))
sketch26.addConstraint(Sketcher.Constraint("DistanceY", 1, 1, 1, 2, Q("10 mm")))
sketch26.addConstraint(Sketcher.Constraint("DistanceY", -1, 1, 0, 2, Q("246.35 mm")))
sketch26.addConstraint(Sketcher.Constraint("DistanceX", 2, 2, -1, 1, Q("10 mm")))
pad26 = doc.addObject("PartDesign::Pad", "Pad025")
body26.addObject(pad26)
pad26.Profile = sketch26
pad26.Length = 1
pad26.Reversed = True
body27 = doc.addObject("PartDesign::Body", "Body026")

sketch27 = doc.addObject("Sketcher::SketchObject", "Sketch026")
body27.addObject(sketch27)
sketch27.AttachmentSupport = (doc.getObject("YZ_Plane026"), [""])
sketch27.MapMode = "FlatFace"
sketch27.AttachmentOffset = App.Placement(Vector(0, 0, 2.75 * 25.4), App.Rotation())
add_polygon(sketch27, [(-10, 261), (0, 256), (0, 266)])
sketch27.addConstraint(Sketcher.Constraint("Vertical", 1))
sketch27.addConstraint(Sketcher.Constraint("PointOnObject", 0, 2, -2))
sketch27.addConstraint(Sketcher.Constraint("Equal", 0, 2))
sketch27.addConstraint(Sketcher.Constraint("DistanceY", 1, 1, 1, 2, Q("10 mm")))
sketch27.addConstraint(Sketcher.Constraint("DistanceY", -1, 1, 0, 2, Q("256.35 mm")))
sketch27.addConstraint(Sketcher.Constraint("DistanceX", 2, 2, -1, 1, Q("10 mm")))
pad27 = doc.addObject("PartDesign::Pad", "Pad026")
body27.addObject(pad27)
pad27.Profile = sketch27
pad27.Length = 1
pad27.Reversed = True
body28 = doc.addObject("PartDesign::Body", "Body027")

sketch28 = doc.addObject("Sketcher::SketchObject", "Sketch027")
body28.addObject(sketch28)
sketch28.AttachmentSupport = (doc.getObject("YZ_Plane027"), [""])
sketch28.MapMode = "FlatFace"
sketch28.AttachmentOffset = App.Placement(Vector(0, 0, 2.75 * 25.4), App.Rotation())
add_polygon(sketch28, [(-10, 271), (0, 266), (0, 276)])
sketch28.addConstraint(Sketcher.Constraint("Vertical", 1))
sketch28.addConstraint(Sketcher.Constraint("PointOnObject", 0, 2, -2))
sketch28.addConstraint(Sketcher.Constraint("Equal", 0, 2))
sketch28.addConstraint(Sketcher.Constraint("DistanceY", 1, 1, 1, 2, Q("10 mm")))
sketch28.addConstraint(Sketcher.Constraint("DistanceY", -1, 1, 0, 2, Q("266.35 mm")))
sketch28.addConstraint(Sketcher.Constraint("DistanceX", 2, 2, -1, 1, Q("10 mm")))
pad28 = doc.addObject("PartDesign::Pad", "Pad027")
body28.addObject(pad28)
pad28.Profile = sketch28
pad28.Length = 1
pad28.Reversed = True
body29 = doc.addObject("PartDesign::Body", "Body028")

sketch29 = doc.addObject("Sketcher::SketchObject", "Sketch028")
body29.addObject(sketch29)
sketch29.AttachmentSupport = (doc.getObject("YZ_Plane028"), [""])
sketch29.MapMode = "FlatFace"
sketch29.AttachmentOffset = App.Placement(Vector(0, 0, 2.75 * 25.4), App.Rotation())
add_polygon(sketch29, [(-10, 281), (0, 276), (0, 286)])
sketch29.addConstraint(Sketcher.Constraint("Vertical", 1))
sketch29.addConstraint(Sketcher.Constraint("PointOnObject", 0, 2, -2))
sketch29.addConstraint(Sketcher.Constraint("Equal", 0, 2))
sketch29.addConstraint(Sketcher.Constraint("DistanceY", 1, 1, 1, 2, Q("10 mm")))
sketch29.addConstraint(Sketcher.Constraint("DistanceY", -1, 1, 0, 2, Q("276.35 mm")))
sketch29.addConstraint(Sketcher.Constraint("DistanceX", 2, 2, -1, 1, Q("10 mm")))
pad29 = doc.addObject("PartDesign::Pad", "Pad028")
body29.addObject(pad29)
pad29.Profile = sketch29
pad29.Length = 1
pad29.Reversed = True
body30 = doc.addObject("PartDesign::Body", "Body029")

sketch30 = doc.addObject("Sketcher::SketchObject", "Sketch029")
body30.addObject(sketch30)
sketch30.AttachmentSupport = (doc.getObject("YZ_Plane029"), [""])
sketch30.MapMode = "FlatFace"
sketch30.AttachmentOffset = App.Placement(Vector(0, 0, 2.75 * 25.4), App.Rotation())
add_polygon(sketch30, [(-10, 291), (0, 286), (0, 296)])
sketch30.addConstraint(Sketcher.Constraint("Vertical", 1))
sketch30.addConstraint(Sketcher.Constraint("PointOnObject", 0, 2, -2))
sketch30.addConstraint(Sketcher.Constraint("Equal", 0, 2))
sketch30.addConstraint(Sketcher.Constraint("DistanceY", 1, 1, 1, 2, Q("10 mm")))
sketch30.addConstraint(Sketcher.Constraint("DistanceY", -1, 1, 0, 2, Q("286.35 mm")))
sketch30.addConstraint(Sketcher.Constraint("DistanceX", 2, 2, -1, 1, Q("10 mm")))
pad30 = doc.addObject("PartDesign::Pad", "Pad029")
body30.addObject(pad30)
pad30.Profile = sketch30
pad30.Length = 1
pad30.Reversed = True
body31 = doc.addObject("PartDesign::Body", "Body030")

sketch31 = doc.addObject("Sketcher::SketchObject", "Sketch030")
body31.addObject(sketch31)
sketch31.AttachmentSupport = (doc.getObject("YZ_Plane030"), [""])
sketch31.MapMode = "FlatFace"
sketch31.AttachmentOffset = App.Placement(Vector(0, 0, 2.75 * 25.4), App.Rotation())
add_polygon(sketch31, [(-10, 301), (0, 296), (0, 306)])
sketch31.addConstraint(Sketcher.Constraint("Vertical", 1))
sketch31.addConstraint(Sketcher.Constraint("PointOnObject", 0, 2, -2))
sketch31.addConstraint(Sketcher.Constraint("Equal", 0, 2))
sketch31.addConstraint(Sketcher.Constraint("DistanceY", 1, 1, 1, 2, Q("10 mm")))
sketch31.addConstraint(Sketcher.Constraint("DistanceY", -1, 1, 0, 2, Q("296.35 mm")))
sketch31.addConstraint(Sketcher.Constraint("DistanceX", 2, 2, -1, 1, Q("10 mm")))
pad31 = doc.addObject("PartDesign::Pad", "Pad030")
body31.addObject(pad31)
pad31.Profile = sketch31
pad31.Length = 1
pad31.Reversed = True
body32 = doc.addObject("PartDesign::Body", "Body031")

sketch32 = doc.addObject("Sketcher::SketchObject", "Sketch031")
body32.addObject(sketch32)
sketch32.AttachmentSupport = (doc.getObject("YZ_Plane031"), [""])
sketch32.MapMode = "FlatFace"
sketch32.AttachmentOffset = App.Placement(Vector(0, 0, 2.75 * 25.4), App.Rotation())
add_polygon(sketch32, [(-10, 311), (0, 306), (0, 316)])
sketch32.addConstraint(Sketcher.Constraint("Vertical", 1))
sketch32.addConstraint(Sketcher.Constraint("PointOnObject", 0, 2, -2))
sketch32.addConstraint(Sketcher.Constraint("Equal", 0, 2))
sketch32.addConstraint(Sketcher.Constraint("DistanceY", 1, 1, 1, 2, Q("10 mm")))
sketch32.addConstraint(Sketcher.Constraint("DistanceY", -1, 1, 0, 2, Q("306.35 mm")))
sketch32.addConstraint(Sketcher.Constraint("DistanceX", 2, 2, -1, 1, Q("10 mm")))
pad32 = doc.addObject("PartDesign::Pad", "Pad031")
body32.addObject(pad32)
pad32.Profile = sketch32
pad32.Length = 1
pad32.Reversed = True
body33 = doc.addObject("PartDesign::Body", "Body032")

sketch33 = doc.addObject("Sketcher::SketchObject", "Sketch032")
body33.addObject(sketch33)
sketch33.AttachmentSupport = (doc.getObject("YZ_Plane032"), [""])
sketch33.MapMode = "FlatFace"
sketch33.AttachmentOffset = App.Placement(Vector(0, 0, 2.75 * 25.4), App.Rotation())
add_polygon(sketch33, [(-10, 321), (0, 316), (0, 326)])
sketch33.addConstraint(Sketcher.Constraint("Vertical", 1))
sketch33.addConstraint(Sketcher.Constraint("PointOnObject", 0, 2, -2))
sketch33.addConstraint(Sketcher.Constraint("Equal", 0, 2))
sketch33.addConstraint(Sketcher.Constraint("DistanceY", 1, 1, 1, 2, Q("10 mm")))
sketch33.addConstraint(Sketcher.Constraint("DistanceY", -1, 1, 0, 2, Q("316.35 mm")))
sketch33.addConstraint(Sketcher.Constraint("DistanceX", 2, 2, -1, 1, Q("10 mm")))
pad33 = doc.addObject("PartDesign::Pad", "Pad032")
body33.addObject(pad33)
pad33.Profile = sketch33
pad33.Length = 1
pad33.Reversed = True
body34 = doc.addObject("PartDesign::Body", "Body033")

sketch34 = doc.addObject("Sketcher::SketchObject", "Sketch033")
body34.addObject(sketch34)
sketch34.AttachmentSupport = (doc.getObject("YZ_Plane033"), [""])
sketch34.MapMode = "FlatFace"
sketch34.AttachmentOffset = App.Placement(Vector(0, 0, 2.75 * 25.4), App.Rotation())
add_polygon(sketch34, [(-10, 331), (0, 326), (0, 336)])
sketch34.addConstraint(Sketcher.Constraint("Vertical", 1))
sketch34.addConstraint(Sketcher.Constraint("PointOnObject", 0, 2, -2))
sketch34.addConstraint(Sketcher.Constraint("Equal", 0, 2))
sketch34.addConstraint(Sketcher.Constraint("DistanceY", 1, 1, 1, 2, Q("10 mm")))
sketch34.addConstraint(Sketcher.Constraint("DistanceY", -1, 1, 0, 2, Q("326.35 mm")))
sketch34.addConstraint(Sketcher.Constraint("DistanceX", 2, 2, -1, 1, Q("10 mm")))
pad34 = doc.addObject("PartDesign::Pad", "Pad033")
body34.addObject(pad34)
pad34.Profile = sketch34
pad34.Length = 1
pad34.Reversed = True
body35 = doc.addObject("PartDesign::Body", "Body034")

sketch35 = doc.addObject("Sketcher::SketchObject", "Sketch034")
body35.addObject(sketch35)
sketch35.AttachmentSupport = (doc.getObject("YZ_Plane034"), [""])
sketch35.MapMode = "FlatFace"
sketch35.AttachmentOffset = App.Placement(Vector(0, 0, 2.75 * 25.4), App.Rotation())
add_polygon(sketch35, [(-10, 391), (0, 386), (0, 396)])
sketch35.addConstraint(Sketcher.Constraint("Vertical", 1))
sketch35.addConstraint(Sketcher.Constraint("PointOnObject", 0, 2, -2))
sketch35.addConstraint(Sketcher.Constraint("Equal", 0, 2))
sketch35.addConstraint(Sketcher.Constraint("DistanceY", 1, 1, 1, 2, Q("10 mm")))
sketch35.addConstraint(Sketcher.Constraint("DistanceY", -1, 1, 0, 2, Q("386.35 mm")))
sketch35.addConstraint(Sketcher.Constraint("DistanceX", 2, 2, -1, 1, Q("10 mm")))
pad35 = doc.addObject("PartDesign::Pad", "Pad034")
body35.addObject(pad35)
pad35.Profile = sketch35
pad35.Length = 1
pad35.Reversed = True
body36 = doc.addObject("PartDesign::Body", "Body035")

sketch36 = doc.addObject("Sketcher::SketchObject", "Sketch035")
body36.addObject(sketch36)
sketch36.AttachmentSupport = (doc.getObject("YZ_Plane035"), [""])
sketch36.MapMode = "FlatFace"
sketch36.AttachmentOffset = App.Placement(Vector(0, 0, 2.75 * 25.4), App.Rotation())
add_polygon(sketch36, [(-10, 381), (0, 376), (0, 386)])
sketch36.addConstraint(Sketcher.Constraint("Vertical", 1))
sketch36.addConstraint(Sketcher.Constraint("PointOnObject", 0, 2, -2))
sketch36.addConstraint(Sketcher.Constraint("Equal", 0, 2))
sketch36.addConstraint(Sketcher.Constraint("DistanceY", 1, 1, 1, 2, Q("10 mm")))
sketch36.addConstraint(Sketcher.Constraint("DistanceY", -1, 1, 0, 2, Q("376.35 mm")))
sketch36.addConstraint(Sketcher.Constraint("DistanceX", 2, 2, -1, 1, Q("10 mm")))
pad36 = doc.addObject("PartDesign::Pad", "Pad035")
body36.addObject(pad36)
pad36.Profile = sketch36
pad36.Length = 1
pad36.Reversed = True
body37 = doc.addObject("PartDesign::Body", "Body036")

sketch37 = doc.addObject("Sketcher::SketchObject", "Sketch036")
body37.addObject(sketch37)
sketch37.AttachmentSupport = (doc.getObject("YZ_Plane036"), [""])
sketch37.MapMode = "FlatFace"
sketch37.AttachmentOffset = App.Placement(Vector(0, 0, 2.75 * 25.4), App.Rotation())
add_polygon(sketch37, [(-10, 371), (0, 366), (0, 376)])
sketch37.addConstraint(Sketcher.Constraint("Vertical", 1))
sketch37.addConstraint(Sketcher.Constraint("PointOnObject", 0, 2, -2))
sketch37.addConstraint(Sketcher.Constraint("Equal", 0, 2))
sketch37.addConstraint(Sketcher.Constraint("DistanceY", 1, 1, 1, 2, Q("10 mm")))
sketch37.addConstraint(Sketcher.Constraint("DistanceY", -1, 1, 0, 2, Q("366.35 mm")))
sketch37.addConstraint(Sketcher.Constraint("DistanceX", 2, 2, -1, 1, Q("10 mm")))
pad37 = doc.addObject("PartDesign::Pad", "Pad036")
body37.addObject(pad37)
pad37.Profile = sketch37
pad37.Length = 1
pad37.Reversed = True
body38 = doc.addObject("PartDesign::Body", "Body037")

sketch38 = doc.addObject("Sketcher::SketchObject", "Sketch037")
body38.addObject(sketch38)
sketch38.AttachmentSupport = (doc.getObject("YZ_Plane037"), [""])
sketch38.MapMode = "FlatFace"
sketch38.AttachmentOffset = App.Placement(Vector(0, 0, 2.75 * 25.4), App.Rotation())
add_polygon(sketch38, [(-10, 361), (0, 356), (0, 366)])
sketch38.addConstraint(Sketcher.Constraint("Vertical", 1))
sketch38.addConstraint(Sketcher.Constraint("PointOnObject", 0, 2, -2))
sketch38.addConstraint(Sketcher.Constraint("Equal", 0, 2))
sketch38.addConstraint(Sketcher.Constraint("DistanceY", 1, 1, 1, 2, Q("10 mm")))
sketch38.addConstraint(Sketcher.Constraint("DistanceY", -1, 1, 0, 2, Q("356.35 mm")))
sketch38.addConstraint(Sketcher.Constraint("DistanceX", 2, 2, -1, 1, Q("10 mm")))
pad38 = doc.addObject("PartDesign::Pad", "Pad037")
body38.addObject(pad38)
pad38.Profile = sketch38
pad38.Length = 1
pad38.Reversed = True
body39 = doc.addObject("PartDesign::Body", "Body038")

sketch39 = doc.addObject("Sketcher::SketchObject", "Sketch038")
body39.addObject(sketch39)
sketch39.AttachmentSupport = (doc.getObject("YZ_Plane038"), [""])
sketch39.MapMode = "FlatFace"
sketch39.AttachmentOffset = App.Placement(Vector(0, 0, 2.75 * 25.4), App.Rotation())
add_polygon(sketch39, [(-10, 351), (0, 346), (0, 356)])
sketch39.addConstraint(Sketcher.Constraint("Vertical", 1))
sketch39.addConstraint(Sketcher.Constraint("PointOnObject", 0, 2, -2))
sketch39.addConstraint(Sketcher.Constraint("Equal", 0, 2))
sketch39.addConstraint(Sketcher.Constraint("DistanceY", 1, 1, 1, 2, Q("10 mm")))
sketch39.addConstraint(Sketcher.Constraint("DistanceY", -1, 1, 0, 2, Q("346.35 mm")))
sketch39.addConstraint(Sketcher.Constraint("DistanceX", 2, 2, -1, 1, Q("10 mm")))
pad39 = doc.addObject("PartDesign::Pad", "Pad038")
body39.addObject(pad39)
pad39.Profile = sketch39
pad39.Length = 1
pad39.Reversed = True
body40 = doc.addObject("PartDesign::Body", "Body039")

sketch40 = doc.addObject("Sketcher::SketchObject", "Sketch039")
body40.addObject(sketch40)
sketch40.AttachmentSupport = (doc.getObject("YZ_Plane039"), [""])
sketch40.MapMode = "FlatFace"
sketch40.AttachmentOffset = App.Placement(Vector(0, 0, 2.75 * 25.4), App.Rotation())
add_polygon(sketch40, [(-10, 341), (0, 336), (0, 346)])
sketch40.addConstraint(Sketcher.Constraint("Vertical", 1))
sketch40.addConstraint(Sketcher.Constraint("PointOnObject", 0, 2, -2))
sketch40.addConstraint(Sketcher.Constraint("Equal", 0, 2))
sketch40.addConstraint(Sketcher.Constraint("DistanceY", 1, 1, 1, 2, Q("10 mm")))
sketch40.addConstraint(Sketcher.Constraint("DistanceY", -1, 1, 0, 2, Q("336.35 mm")))
sketch40.addConstraint(Sketcher.Constraint("DistanceX", 2, 2, -1, 1, Q("10 mm")))
pad40 = doc.addObject("PartDesign::Pad", "Pad039")
body40.addObject(pad40)
pad40.Profile = sketch40
pad40.Length = 1
pad40.Reversed = True

doc.recompute()
